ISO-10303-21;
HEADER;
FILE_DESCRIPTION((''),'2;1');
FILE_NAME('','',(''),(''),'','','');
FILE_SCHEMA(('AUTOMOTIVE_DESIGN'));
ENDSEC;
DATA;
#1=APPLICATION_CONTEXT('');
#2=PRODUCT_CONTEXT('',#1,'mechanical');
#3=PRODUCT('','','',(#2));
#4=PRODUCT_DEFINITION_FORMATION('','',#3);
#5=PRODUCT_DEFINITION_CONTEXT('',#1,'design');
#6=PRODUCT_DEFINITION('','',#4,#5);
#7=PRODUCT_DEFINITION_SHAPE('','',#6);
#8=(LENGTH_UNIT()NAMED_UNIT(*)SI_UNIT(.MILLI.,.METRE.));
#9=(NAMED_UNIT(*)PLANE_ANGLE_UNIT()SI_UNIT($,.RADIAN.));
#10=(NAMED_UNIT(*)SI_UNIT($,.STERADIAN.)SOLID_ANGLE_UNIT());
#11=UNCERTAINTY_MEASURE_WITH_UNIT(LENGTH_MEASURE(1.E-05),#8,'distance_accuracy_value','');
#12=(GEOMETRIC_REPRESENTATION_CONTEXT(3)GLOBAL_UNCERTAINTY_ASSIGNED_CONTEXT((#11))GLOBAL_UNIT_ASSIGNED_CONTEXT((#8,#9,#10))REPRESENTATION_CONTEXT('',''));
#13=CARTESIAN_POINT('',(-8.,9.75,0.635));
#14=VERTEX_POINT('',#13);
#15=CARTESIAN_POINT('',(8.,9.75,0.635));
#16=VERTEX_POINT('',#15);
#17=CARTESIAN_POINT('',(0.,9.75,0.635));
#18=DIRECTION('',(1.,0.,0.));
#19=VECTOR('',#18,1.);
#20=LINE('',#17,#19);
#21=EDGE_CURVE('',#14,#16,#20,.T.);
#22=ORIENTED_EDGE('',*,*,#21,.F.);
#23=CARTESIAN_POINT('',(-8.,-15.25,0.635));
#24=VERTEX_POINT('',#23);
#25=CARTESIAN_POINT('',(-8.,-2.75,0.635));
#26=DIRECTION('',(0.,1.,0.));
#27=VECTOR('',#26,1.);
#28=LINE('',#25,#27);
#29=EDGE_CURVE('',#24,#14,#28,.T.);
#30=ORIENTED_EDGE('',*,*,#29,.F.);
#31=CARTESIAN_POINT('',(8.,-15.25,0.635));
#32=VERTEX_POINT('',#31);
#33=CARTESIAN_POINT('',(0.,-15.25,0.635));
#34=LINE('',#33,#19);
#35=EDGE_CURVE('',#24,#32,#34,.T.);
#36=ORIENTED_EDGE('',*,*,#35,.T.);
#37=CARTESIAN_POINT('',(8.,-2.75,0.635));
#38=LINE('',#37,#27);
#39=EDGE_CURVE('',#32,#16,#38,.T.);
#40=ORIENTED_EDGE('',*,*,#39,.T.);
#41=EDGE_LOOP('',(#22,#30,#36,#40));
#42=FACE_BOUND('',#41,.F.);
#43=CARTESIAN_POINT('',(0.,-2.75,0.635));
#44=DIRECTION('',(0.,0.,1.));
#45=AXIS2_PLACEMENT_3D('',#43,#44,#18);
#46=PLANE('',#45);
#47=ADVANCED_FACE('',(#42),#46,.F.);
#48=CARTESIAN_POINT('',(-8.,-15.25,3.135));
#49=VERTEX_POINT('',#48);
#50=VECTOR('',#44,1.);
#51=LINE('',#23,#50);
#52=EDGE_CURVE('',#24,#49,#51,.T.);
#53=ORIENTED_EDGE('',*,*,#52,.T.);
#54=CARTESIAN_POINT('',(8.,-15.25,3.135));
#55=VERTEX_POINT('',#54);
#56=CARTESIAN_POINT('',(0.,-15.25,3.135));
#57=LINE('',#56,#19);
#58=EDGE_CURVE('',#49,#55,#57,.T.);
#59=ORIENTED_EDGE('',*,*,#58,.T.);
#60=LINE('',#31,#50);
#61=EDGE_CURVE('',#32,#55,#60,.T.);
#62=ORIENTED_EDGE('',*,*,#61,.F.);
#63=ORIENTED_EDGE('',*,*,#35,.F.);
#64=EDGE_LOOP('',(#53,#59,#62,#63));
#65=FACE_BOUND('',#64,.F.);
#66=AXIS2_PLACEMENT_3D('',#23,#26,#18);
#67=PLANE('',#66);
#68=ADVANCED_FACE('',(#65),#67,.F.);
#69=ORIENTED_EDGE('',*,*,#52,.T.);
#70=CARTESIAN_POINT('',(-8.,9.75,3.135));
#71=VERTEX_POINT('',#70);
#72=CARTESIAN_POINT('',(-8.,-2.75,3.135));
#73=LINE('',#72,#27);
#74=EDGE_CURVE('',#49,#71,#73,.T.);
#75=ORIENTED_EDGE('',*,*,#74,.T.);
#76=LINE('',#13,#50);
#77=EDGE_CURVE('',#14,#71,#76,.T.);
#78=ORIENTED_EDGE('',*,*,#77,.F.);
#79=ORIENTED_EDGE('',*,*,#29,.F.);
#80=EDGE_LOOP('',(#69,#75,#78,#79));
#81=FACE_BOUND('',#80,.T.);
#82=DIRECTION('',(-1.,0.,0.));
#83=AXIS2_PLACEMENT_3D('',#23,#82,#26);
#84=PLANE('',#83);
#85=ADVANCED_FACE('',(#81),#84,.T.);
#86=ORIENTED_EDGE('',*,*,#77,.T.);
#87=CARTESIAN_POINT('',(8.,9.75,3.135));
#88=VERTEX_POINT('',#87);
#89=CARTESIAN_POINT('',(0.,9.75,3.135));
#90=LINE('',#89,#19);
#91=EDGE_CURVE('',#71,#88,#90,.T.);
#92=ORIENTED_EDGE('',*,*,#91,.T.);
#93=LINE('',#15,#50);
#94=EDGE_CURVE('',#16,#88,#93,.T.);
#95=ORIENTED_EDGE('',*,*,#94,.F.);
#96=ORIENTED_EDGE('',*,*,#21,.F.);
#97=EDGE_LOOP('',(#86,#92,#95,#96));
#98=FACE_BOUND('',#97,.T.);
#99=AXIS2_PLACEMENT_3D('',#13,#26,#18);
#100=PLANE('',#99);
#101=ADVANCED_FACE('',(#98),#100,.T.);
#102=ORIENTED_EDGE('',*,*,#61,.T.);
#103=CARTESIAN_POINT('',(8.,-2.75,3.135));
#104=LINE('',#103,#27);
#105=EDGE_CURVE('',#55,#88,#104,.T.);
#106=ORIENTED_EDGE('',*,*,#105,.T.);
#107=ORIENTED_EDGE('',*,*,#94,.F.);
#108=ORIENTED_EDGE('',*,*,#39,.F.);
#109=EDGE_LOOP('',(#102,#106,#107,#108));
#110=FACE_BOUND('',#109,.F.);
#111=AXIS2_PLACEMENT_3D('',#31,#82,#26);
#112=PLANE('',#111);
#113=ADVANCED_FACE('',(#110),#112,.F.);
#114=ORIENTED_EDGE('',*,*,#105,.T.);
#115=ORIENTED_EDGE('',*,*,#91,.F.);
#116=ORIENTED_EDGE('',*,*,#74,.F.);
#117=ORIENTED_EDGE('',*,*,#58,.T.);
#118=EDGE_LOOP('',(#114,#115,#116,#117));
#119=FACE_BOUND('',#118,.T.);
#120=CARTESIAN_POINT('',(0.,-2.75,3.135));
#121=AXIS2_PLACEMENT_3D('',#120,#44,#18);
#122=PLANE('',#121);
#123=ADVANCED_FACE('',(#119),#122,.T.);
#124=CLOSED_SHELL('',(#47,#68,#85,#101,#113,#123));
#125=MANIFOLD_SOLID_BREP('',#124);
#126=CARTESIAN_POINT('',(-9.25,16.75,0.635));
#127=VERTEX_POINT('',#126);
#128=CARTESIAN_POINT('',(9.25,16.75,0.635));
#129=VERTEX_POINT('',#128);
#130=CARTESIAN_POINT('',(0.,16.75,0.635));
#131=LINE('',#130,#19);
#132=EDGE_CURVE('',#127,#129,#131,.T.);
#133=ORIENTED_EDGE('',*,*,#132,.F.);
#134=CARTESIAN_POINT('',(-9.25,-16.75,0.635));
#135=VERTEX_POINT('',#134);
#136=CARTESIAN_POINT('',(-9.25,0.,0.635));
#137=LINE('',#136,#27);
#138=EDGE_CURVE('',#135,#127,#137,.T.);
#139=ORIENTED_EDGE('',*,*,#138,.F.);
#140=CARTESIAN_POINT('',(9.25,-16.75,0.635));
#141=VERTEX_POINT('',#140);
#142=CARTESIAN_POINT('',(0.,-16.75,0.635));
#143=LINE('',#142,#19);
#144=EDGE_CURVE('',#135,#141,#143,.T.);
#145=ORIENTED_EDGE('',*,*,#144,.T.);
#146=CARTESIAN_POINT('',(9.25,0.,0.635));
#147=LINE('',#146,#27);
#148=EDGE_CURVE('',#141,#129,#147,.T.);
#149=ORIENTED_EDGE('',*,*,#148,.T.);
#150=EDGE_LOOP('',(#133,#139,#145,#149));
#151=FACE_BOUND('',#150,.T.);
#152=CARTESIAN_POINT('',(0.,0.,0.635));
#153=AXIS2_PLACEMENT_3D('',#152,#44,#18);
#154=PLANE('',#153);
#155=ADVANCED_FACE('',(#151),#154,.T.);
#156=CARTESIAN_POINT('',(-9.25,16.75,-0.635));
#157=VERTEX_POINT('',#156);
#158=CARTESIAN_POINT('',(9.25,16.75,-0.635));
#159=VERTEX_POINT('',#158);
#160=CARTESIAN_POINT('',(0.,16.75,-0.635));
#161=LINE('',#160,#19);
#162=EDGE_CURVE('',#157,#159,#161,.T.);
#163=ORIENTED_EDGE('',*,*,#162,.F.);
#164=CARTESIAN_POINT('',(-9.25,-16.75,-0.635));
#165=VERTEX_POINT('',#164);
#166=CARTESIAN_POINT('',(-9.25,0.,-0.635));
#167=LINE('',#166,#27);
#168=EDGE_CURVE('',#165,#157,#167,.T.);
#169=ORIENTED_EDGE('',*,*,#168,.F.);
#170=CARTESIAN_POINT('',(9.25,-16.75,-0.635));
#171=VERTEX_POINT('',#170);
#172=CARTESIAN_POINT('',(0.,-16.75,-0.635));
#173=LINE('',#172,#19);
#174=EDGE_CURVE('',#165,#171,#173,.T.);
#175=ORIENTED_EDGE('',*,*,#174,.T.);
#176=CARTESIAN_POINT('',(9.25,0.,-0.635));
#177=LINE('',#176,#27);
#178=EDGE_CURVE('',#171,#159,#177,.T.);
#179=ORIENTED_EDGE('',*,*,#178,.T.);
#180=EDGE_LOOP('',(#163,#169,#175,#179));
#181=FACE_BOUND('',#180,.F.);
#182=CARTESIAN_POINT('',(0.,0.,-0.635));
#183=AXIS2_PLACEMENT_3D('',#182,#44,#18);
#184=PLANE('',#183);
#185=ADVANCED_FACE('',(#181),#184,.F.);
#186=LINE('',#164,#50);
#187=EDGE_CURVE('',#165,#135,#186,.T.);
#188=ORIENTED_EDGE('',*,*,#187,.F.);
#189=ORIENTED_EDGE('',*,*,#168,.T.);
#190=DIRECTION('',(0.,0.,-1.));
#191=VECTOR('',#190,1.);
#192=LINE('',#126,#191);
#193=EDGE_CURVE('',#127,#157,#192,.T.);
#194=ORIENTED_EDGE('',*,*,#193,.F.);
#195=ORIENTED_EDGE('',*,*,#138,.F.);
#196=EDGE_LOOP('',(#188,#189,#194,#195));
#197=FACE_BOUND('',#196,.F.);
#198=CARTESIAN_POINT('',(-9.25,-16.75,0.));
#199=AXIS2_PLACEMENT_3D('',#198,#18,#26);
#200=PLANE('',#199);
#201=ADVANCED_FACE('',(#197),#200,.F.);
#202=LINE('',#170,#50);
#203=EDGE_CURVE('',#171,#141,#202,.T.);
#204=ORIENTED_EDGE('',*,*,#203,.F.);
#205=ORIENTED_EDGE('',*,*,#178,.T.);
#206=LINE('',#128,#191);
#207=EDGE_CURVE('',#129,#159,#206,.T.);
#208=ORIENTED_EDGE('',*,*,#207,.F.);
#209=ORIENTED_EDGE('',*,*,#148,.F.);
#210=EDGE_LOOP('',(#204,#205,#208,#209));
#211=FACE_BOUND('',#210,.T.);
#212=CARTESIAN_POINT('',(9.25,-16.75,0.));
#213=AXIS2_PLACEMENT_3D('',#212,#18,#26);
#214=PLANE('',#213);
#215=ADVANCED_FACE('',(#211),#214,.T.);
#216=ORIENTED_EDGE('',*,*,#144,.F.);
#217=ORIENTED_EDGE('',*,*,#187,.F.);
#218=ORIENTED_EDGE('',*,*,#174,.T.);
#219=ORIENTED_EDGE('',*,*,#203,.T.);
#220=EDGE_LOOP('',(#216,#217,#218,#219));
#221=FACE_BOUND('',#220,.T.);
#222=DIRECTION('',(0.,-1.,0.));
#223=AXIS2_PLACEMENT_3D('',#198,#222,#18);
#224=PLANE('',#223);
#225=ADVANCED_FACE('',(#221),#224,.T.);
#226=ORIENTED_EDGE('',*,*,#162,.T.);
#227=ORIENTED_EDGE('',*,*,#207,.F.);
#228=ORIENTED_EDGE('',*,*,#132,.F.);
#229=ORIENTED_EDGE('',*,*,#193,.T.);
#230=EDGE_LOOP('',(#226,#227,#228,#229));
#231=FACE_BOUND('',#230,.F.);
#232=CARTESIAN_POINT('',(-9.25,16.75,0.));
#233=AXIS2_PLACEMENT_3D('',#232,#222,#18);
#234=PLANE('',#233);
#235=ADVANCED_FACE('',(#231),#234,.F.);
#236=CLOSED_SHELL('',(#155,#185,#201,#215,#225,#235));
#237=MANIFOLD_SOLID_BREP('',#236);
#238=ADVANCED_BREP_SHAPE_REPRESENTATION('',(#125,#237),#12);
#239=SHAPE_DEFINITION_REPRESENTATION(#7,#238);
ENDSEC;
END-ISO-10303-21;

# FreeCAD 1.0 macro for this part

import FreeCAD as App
import Part
import Sketcher
from FreeCAD import Vector
Q = App.Units.Quantity

doc = App.newDocument("Part")
body = doc.addObject("PartDesign::Body", "Body")

# Sketch on XY plane
sketch1 = body.newObject("Sketcher::SketchObject", "Sketch")
sketch1.AttachmentSupport = (doc.getObject("XY_Plane"), [""])
sketch1.MapMode = "FlatFace"
sketch1.addGeometry([
    Part.LineSegment(Vector(-9, 17, 0), Vector(-9, -17, 0)),
    Part.LineSegment(Vector(-9, -17, 0), Vector(9, -17, 0)),
    Part.LineSegment(Vector(9, -17, 0), Vector(9, 17, 0)),
    Part.LineSegment(Vector(9, 17, 0), Vector(-9, 17, 0)),
], False)
sketch1.addConstraint([
    Sketcher.Constraint("Coincident", 0, 2, 1, 1),
    Sketcher.Constraint("Coincident", 1, 2, 2, 1),
    Sketcher.Constraint("Coincident", 2, 2, 3, 1),
    Sketcher.Constraint("Coincident", 3, 2, 0, 1),
    Sketcher.Constraint("Vertical", 0),
    Sketcher.Constraint("Horizontal", 1),
    Sketcher.Constraint("Vertical", 2),
    Sketcher.Constraint("Horizontal", 3),
    Sketcher.Constraint("Symmetric", 0, 2, 2, 2, -1, 1),
    Sketcher.Constraint("DistanceX", 1, 1, 1, 2, Q("18.5 mm")),
    Sketcher.Constraint("DistanceY", 0, 2, 0, 1, Q("33.5 mm")),
])
pad1 = body.newObject("PartDesign::Pad", "Pad")
pad1.Profile = sketch1
pad1.Length = 1.27
pad1.Midplane = True
body2 = doc.addObject("PartDesign::Body", "Body001")

# Sketch on XY plane
sketch2 = body2.newObject("Sketcher::SketchObject", "Sketch001")
sketch2.AttachmentSupport = (doc.getObject("XY_Plane001"), [""])
sketch2.MapMode = "FlatFace"
sketch2.AttachmentOffset = App.Placement(Vector(0, 0, 0.635), App.Rotation())
sketch2.addGeometry([
    Part.LineSegment(Vector(-8, 10, 0), Vector(-8, -15, 0)),
    Part.LineSegment(Vector(-8, -15, 0), Vector(8, -15, 0)),
    Part.LineSegment(Vector(8, -15, 0), Vector(8, 10, 0)),
    Part.LineSegment(Vector(8, 10, 0), Vector(-8, 10, 0)),
], False)
sketch2.addConstraint([
    Sketcher.Constraint("Coincident", 0, 2, 1, 1),
    Sketcher.Constraint("Coincident", 1, 2, 2, 1),
    Sketcher.Constraint("Coincident", 2, 2, 3, 1),
    Sketcher.Constraint("Coincident", 3, 2, 0, 1),
    Sketcher.Constraint("Vertical", 0),
    Sketcher.Constraint("Horizontal", 1),
    Sketcher.Constraint("Vertical", 2),
    Sketcher.Constraint("Horizontal", 3),
    Sketcher.Constraint("DistanceX", 1, 1, 1, 2, Q("16 mm")),
    Sketcher.Constraint("DistanceY", 0, 2, 0, 1, Q("25 mm")),
    Sketcher.Constraint("DistanceX", 0, 2, -1, 1, Q("8 mm")),
    Sketcher.Constraint("DistanceY", 0, 2, -1, 1, Q("15.25 mm")),
])
pad2 = body2.newObject("PartDesign::Pad", "Pad001")
pad2.Profile = sketch2
pad2.Length = 2.5

doc.recompute()
